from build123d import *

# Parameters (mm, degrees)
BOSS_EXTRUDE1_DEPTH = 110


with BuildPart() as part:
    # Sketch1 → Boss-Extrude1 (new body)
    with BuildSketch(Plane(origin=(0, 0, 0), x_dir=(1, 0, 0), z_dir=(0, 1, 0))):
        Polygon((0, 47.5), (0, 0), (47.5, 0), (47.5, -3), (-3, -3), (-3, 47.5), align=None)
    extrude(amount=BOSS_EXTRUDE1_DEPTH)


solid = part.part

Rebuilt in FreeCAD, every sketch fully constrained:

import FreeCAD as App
import Part
import Sketcher

V = App.Vector

doc = App.newDocument("Part")
body = doc.addObject("PartDesign::Body", "Body")

# Sketch on XZ plane
sketch1 = body.newObject("Sketcher::SketchObject", "Sketch")
sketch1.AttachmentSupport = (doc.getObject("XZ_Plane"), [""])
sketch1.MapMode = "FlatFace"
sketch1.addGeometry([
    Part.LineSegment(V(0, 0, 0), V(0, -47.5, 0)),  # 0
    Part.LineSegment(V(0, -47.5, 0), V(-3, -47.5, 0)),  # 1
    Part.LineSegment(V(-3, -47.5, 0), V(-3, 3, 0)),  # 2
    Part.LineSegment(V(-3, 3, 0), V(47.5, 3, 0)),  # 3
    Part.LineSegment(V(47.5, 3, 0), V(47.5, 0, 0)),  # 4
    Part.LineSegment(V(47.5, 0, 0), V(0, 0, 0)),  # 5
], False)
sketch1.addConstraint([
    Sketcher.Constraint("Coincident", 0, 2, 1, 1),
    Sketcher.Constraint("Coincident", 1, 2, 2, 1),
    Sketcher.Constraint("Coincident", 2, 2, 3, 1),
    Sketcher.Constraint("Coincident", 3, 2, 4, 1),
    Sketcher.Constraint("Coincident", 4, 2, 5, 1),
    Sketcher.Constraint("Coincident", 5, 2, 0, 1),
    Sketcher.Constraint("Vertical", 0),
    Sketcher.Constraint("Horizontal", 1),
    Sketcher.Constraint("Vertical", 2),
    Sketcher.Constraint("Horizontal", 3),
    Sketcher.Constraint("Vertical", 4),
    Sketcher.Constraint("Horizontal", 5),
    Sketcher.Constraint("Coincident", 5, 2, -1, 1),
    Sketcher.Constraint("Equal", 5, 0),
    Sketcher.Constraint("Equal", 3, 2),
    Sketcher.Constraint("DistanceX", 1, 2, 1, 1, 3.0),
    Sketcher.Constraint("DistanceX", 3, 1, 3, 2, 50.5),
])
pad1 = body.newObject("PartDesign::Pad", "Pad")
pad1.Profile = sketch1
pad1.Length = 110
pad1.Reversed = True

doc.recompute()
